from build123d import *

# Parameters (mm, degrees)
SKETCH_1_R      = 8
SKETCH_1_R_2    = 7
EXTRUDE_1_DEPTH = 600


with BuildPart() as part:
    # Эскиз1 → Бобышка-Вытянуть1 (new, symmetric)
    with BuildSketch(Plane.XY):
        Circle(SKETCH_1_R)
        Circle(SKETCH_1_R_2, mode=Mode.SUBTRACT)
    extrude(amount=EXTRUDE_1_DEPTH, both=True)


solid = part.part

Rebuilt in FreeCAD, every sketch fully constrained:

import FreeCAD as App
import Part
import Sketcher
Q = App.Units.Quantity

doc = App.newDocument("Part")
body = doc.addObject("PartDesign::Body", "Body")

sketch1 = body.newObject("Sketcher::SketchObject", "Sketch")
sketch1.AttachmentSupport = (doc.getObject("XY_Plane"), [""])
sketch1.MapMode = "FlatFace"
sketch1.addGeometry(Part.Circle(App.Vector(0, 0, 0), App.Vector(0, 0, 1), 8), False)
sketch1.addGeometry(Part.Circle(App.Vector(0, 0, 0), App.Vector(0, 0, 1), 7), False)
sketch1.addConstraint(Sketcher.Constraint("Coincident", 0, 3, -1, 1))
sketch1.addConstraint(Sketcher.Constraint("Coincident", 1, 3, -1, 1))
sketch1.addConstraint(Sketcher.Constraint("Diameter", 0, Q("16 mm")))
sketch1.addConstraint(Sketcher.Constraint("Diameter", 1, Q("14 mm")))
pad1 = body.newObject("PartDesign::Pad", "Pad")
pad1.Profile = sketch1
pad1.Length = 1200
pad1.Midplane = True

doc.recompute()
